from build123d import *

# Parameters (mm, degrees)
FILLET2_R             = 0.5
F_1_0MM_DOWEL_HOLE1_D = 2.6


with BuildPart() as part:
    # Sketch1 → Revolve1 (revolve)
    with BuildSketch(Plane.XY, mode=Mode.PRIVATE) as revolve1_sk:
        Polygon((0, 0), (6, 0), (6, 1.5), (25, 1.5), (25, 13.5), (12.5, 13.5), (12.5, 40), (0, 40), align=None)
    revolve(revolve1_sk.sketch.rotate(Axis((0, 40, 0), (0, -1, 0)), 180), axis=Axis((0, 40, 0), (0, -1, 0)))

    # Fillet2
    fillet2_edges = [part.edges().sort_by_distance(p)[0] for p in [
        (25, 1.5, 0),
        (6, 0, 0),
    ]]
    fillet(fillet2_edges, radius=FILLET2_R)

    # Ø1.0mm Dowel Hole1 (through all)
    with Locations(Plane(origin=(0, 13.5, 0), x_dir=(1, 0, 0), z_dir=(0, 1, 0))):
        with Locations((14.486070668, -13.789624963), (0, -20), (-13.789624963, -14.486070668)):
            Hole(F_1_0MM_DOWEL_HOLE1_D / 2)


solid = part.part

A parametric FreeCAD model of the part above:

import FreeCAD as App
import Part
import Sketcher

V = App.Vector


def edges_at(feature, points):
    """Names of the edges that pass closest to the given points."""
    edges = feature.Shape.Edges
    near = lambda p: min(range(len(edges)), key=lambda i: edges[i].distToShape(Part.Vertex(*p))[0])
    return sorted({f"Edge{near(p) + 1}" for p in points})

doc = App.newDocument("Part")
params = doc.addObject("Spreadsheet::Sheet", "Params")
for row, (alias, value) in enumerate([
    ("sketch1_width", "6 mm"),
    ("sketch1_width2", "19 mm"),
    ("sketch1_height", "12 mm"),
    ("sketch1_height2", "40 mm"),
    ("sketch1_height3", "1.5 mm"),
    ("revolution_angle", "360 deg"),
    ("fillet_radius", "0.5 mm"),
    ("sketch2_diameter", "2.6 mm"),
    ("hole_diameter", "2.6 mm"),
], start=1):
    params.set(f"A{row}", alias)
    params.set(f"B{row}", "=" + value)
    params.setAlias(f"B{row}", alias)

body = doc.addObject("PartDesign::Body", "Body")

# Sketch on XY plane
sketch1 = body.newObject("Sketcher::SketchObject", "Sketch")
sketch1.AttachmentSupport = (doc.getObject("XY_Plane"), [""])
sketch1.MapMode = "FlatFace"
sketch1.addGeometry([
    Part.LineSegment(V(0, 0, 0), V(6, 0, 0)),  # 0
    Part.LineSegment(V(6, 0, 0), V(6, 1.5, 0)),  # 1
    Part.LineSegment(V(6, 1.5, 0), V(25, 1.5, 0)),  # 2
    Part.LineSegment(V(25, 1.5, 0), V(25, 13.5, 0)),  # 3
    Part.LineSegment(V(25, 13.5, 0), V(12.5, 13.5, 0)),  # 4
    Part.LineSegment(V(12.5, 13.5, 0), V(12.5, 40, 0)),  # 5
    Part.LineSegment(V(12.5, 40, 0), V(0, 40, 0)),  # 6
    Part.LineSegment(V(0, 40, 0), V(0, 0, 0)),  # 7
], False)
sketch1.addConstraint([
    Sketcher.Constraint("Coincident", 0, 2, 1, 1),
    Sketcher.Constraint("Coincident", 1, 2, 2, 1),
    Sketcher.Constraint("Coincident", 2, 2, 3, 1),
    Sketcher.Constraint("Coincident", 3, 2, 4, 1),
    Sketcher.Constraint("Coincident", 4, 2, 5, 1),
    Sketcher.Constraint("Coincident", 5, 2, 6, 1),
    Sketcher.Constraint("Coincident", 6, 2, 7, 1),
    Sketcher.Constraint("Coincident", 7, 2, 0, 1),
    Sketcher.Constraint("Horizontal", 0),
    Sketcher.Constraint("Vertical", 1),
    Sketcher.Constraint("Horizontal", 2),
    Sketcher.Constraint("Vertical", 3),
    Sketcher.Constraint("Horizontal", 4),
    Sketcher.Constraint("Vertical", 5),
    Sketcher.Constraint("Horizontal", 6),
    Sketcher.Constraint("Vertical", 7),
    Sketcher.Constraint("Coincident", 7, 2, -1, 1),
    Sketcher.Constraint("Equal", 4, 6),
    Sketcher.Constraint("DistanceX", 0, 1, 0, 2, 6.0),
    Sketcher.Constraint("DistanceX", 2, 1, 2, 2, 19.0),
    Sketcher.Constraint("DistanceY", 3, 1, 3, 2, 12.0),
    Sketcher.Constraint("DistanceY", 7, 2, 7, 1, 40.0),
    Sketcher.Constraint("DistanceY", 1, 1, 1, 2, 1.5),
])
sketch1.setExpression("Constraints[18]", "Params.sketch1_width")
sketch1.setExpression("Constraints[19]", "Params.sketch1_width2")
sketch1.setExpression("Constraints[20]", "Params.sketch1_height")
sketch1.setExpression("Constraints[21]", "Params.sketch1_height2")
sketch1.setExpression("Constraints[22]", "Params.sketch1_height3")
revolution = body.newObject("PartDesign::Revolution", "Revolution")
revolution.Profile = sketch1
revolution.ReferenceAxis = (sketch1, ["V_Axis"])
revolution.setExpression("Angle", "Params.revolution_angle")
doc.recompute()

fillet = body.newObject("PartDesign::Fillet", "Fillet")
fillet.Base = (revolution, edges_at(revolution, [(25, 1.5, 0), (6, 0, 0)]))
fillet.setExpression("Radius", "Params.fillet_radius")

# Sketch on XZ plane
sketch2 = body.newObject("Sketcher::SketchObject", "Sketch001")
sketch2.AttachmentSupport = (doc.getObject("XZ_Plane"), [""])
sketch2.MapMode = "FlatFace"
sketch2.AttachmentOffset = App.Placement(V(0, 0, -13.5), App.Rotation())
sketch2.addGeometry([
    Part.Circle(V(14.5, 13.8, 0), V(0, 0, 1), 1.3),
    Part.Circle(V(0, 20, 0), V(0, 0, 1), 1.3),
    Part.Circle(V(-13.8, 14.5, 0), V(0, 0, 1), 1.3),
], False)
sketch2.addConstraint([
    Sketcher.Constraint("Equal", 0, 1),
    Sketcher.Constraint("Equal", 1, 2),
    Sketcher.Constraint("PointOnObject", 1, 3, -2),
    Sketcher.Constraint("Diameter", 0, 2.6),
    Sketcher.Constraint("DistanceY", -1, 1, 1, 3, 20.0),
    Sketcher.Constraint("DistanceX", -1, 1, 0, 3, 14.486071),
    Sketcher.Constraint("DistanceY", -1, 1, 2, 3, 14.486071),
    Sketcher.Constraint("DistanceY", -1, 1, 0, 3, 13.789625),
    Sketcher.Constraint("DistanceX", 2, 3, -1, 1, 13.789625),
])
sketch2.setExpression("Constraints[3]", "Params.sketch2_diameter")
doc.recompute()
hole = body.newObject("PartDesign::Hole", "Hole")
hole.Profile = sketch2
hole.ThreadType = "None"
hole.setExpression("Diameter", "Params.hole_diameter")
hole.DepthType = "ThroughAll"
hole.Reversed = True

doc.recompute()
